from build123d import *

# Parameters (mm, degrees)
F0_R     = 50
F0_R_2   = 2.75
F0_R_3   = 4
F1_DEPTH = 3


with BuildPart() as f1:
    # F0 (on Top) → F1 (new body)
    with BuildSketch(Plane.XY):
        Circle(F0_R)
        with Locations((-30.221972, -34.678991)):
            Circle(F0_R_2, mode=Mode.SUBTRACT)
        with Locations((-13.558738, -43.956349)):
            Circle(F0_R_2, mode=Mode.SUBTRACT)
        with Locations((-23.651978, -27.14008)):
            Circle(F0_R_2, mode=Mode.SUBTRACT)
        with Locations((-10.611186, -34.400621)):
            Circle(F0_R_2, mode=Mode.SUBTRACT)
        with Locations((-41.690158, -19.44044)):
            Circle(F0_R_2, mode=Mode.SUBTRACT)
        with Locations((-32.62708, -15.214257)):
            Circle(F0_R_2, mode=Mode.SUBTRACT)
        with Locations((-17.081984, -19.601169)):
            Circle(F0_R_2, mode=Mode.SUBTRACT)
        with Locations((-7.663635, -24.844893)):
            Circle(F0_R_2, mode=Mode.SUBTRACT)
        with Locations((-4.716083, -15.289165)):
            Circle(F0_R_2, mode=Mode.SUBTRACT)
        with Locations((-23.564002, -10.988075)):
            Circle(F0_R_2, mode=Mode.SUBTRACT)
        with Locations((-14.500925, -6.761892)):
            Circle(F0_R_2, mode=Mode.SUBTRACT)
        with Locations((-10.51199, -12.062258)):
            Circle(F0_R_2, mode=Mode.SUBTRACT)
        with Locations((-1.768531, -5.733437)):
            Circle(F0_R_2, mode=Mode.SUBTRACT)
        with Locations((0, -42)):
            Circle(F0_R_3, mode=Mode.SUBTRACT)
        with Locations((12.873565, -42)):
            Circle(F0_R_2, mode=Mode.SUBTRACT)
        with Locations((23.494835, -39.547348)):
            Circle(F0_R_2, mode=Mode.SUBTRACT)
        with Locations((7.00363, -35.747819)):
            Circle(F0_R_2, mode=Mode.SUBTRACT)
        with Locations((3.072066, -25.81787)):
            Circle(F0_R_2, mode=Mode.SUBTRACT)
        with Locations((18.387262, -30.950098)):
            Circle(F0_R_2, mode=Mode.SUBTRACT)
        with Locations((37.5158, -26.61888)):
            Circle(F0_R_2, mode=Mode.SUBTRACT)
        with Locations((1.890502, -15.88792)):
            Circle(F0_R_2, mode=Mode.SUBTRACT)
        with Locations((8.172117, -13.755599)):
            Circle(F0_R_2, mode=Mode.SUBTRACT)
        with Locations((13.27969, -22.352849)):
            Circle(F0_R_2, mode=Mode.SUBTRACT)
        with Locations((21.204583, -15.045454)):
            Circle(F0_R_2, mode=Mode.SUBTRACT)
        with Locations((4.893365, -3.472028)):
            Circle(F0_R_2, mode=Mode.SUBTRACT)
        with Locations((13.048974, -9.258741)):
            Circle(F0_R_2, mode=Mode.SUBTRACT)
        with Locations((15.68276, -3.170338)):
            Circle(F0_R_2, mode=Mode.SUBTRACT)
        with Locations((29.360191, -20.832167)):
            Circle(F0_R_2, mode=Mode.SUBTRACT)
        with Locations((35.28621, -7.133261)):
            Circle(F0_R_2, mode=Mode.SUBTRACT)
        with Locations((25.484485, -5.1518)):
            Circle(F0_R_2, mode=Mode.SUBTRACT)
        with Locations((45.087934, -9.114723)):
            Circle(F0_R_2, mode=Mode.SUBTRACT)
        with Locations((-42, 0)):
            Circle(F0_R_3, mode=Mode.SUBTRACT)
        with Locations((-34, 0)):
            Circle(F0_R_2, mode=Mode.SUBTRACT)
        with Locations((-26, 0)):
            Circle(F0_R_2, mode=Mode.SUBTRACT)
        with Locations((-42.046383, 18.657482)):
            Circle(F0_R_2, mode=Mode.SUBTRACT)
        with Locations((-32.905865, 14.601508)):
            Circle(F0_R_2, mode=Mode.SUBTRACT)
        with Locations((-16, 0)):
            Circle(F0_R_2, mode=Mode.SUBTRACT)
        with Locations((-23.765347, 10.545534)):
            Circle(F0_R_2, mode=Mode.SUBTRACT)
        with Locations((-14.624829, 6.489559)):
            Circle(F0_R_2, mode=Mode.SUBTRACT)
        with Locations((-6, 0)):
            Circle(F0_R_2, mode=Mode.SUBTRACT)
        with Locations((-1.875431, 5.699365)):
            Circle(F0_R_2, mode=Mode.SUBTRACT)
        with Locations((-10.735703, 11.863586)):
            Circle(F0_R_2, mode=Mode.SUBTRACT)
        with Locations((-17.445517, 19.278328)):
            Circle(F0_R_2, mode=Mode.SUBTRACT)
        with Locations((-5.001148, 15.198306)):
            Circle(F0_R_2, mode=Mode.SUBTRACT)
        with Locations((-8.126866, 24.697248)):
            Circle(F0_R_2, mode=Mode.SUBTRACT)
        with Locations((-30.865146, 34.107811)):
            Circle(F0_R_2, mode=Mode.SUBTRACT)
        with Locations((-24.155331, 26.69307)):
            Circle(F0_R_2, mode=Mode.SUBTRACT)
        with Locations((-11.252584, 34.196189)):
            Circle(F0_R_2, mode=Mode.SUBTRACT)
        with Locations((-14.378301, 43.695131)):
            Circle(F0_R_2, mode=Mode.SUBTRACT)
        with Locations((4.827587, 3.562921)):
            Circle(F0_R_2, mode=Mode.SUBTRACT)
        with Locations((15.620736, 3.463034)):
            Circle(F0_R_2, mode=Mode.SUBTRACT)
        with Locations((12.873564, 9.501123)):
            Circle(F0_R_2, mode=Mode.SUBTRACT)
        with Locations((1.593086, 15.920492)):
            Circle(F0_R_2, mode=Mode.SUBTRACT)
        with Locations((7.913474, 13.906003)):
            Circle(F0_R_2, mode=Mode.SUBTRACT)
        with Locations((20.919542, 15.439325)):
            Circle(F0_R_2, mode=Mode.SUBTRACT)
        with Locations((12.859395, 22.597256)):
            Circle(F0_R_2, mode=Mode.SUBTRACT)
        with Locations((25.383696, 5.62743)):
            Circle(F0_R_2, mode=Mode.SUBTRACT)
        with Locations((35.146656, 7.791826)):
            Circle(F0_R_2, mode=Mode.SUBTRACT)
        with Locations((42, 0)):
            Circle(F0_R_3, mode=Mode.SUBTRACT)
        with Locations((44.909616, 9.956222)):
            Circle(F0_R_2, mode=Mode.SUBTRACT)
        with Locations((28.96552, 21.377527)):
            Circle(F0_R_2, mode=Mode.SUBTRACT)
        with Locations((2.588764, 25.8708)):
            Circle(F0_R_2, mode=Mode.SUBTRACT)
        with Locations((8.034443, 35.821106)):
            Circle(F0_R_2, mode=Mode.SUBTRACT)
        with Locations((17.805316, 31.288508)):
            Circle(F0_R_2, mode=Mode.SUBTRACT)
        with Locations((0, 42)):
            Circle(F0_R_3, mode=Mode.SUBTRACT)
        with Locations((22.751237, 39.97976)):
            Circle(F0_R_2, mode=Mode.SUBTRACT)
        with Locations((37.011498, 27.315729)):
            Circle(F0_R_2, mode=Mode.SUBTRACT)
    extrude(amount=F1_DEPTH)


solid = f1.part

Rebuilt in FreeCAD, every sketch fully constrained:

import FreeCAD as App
import Part
import Sketcher
Q = App.Units.Quantity

doc = App.newDocument("Part")
params = doc.addObject("Spreadsheet::Sheet", "Params")
for row, (alias, value) in enumerate([
    ("sketch1_diameter", "100 mm"),
    ("sketch1_diameter2", "8 mm"),
    ("sketch1_diameter3", "5.5 mm"),
    ("pad1_length", "3 mm"),
], start=1):
    params.set(f"A{row}", alias)
    params.set(f"B{row}", "=" + value)
    params.setAlias(f"B{row}", alias)

body = doc.addObject("PartDesign::Body", "Body")

# Sketch on XY plane
sketch1 = doc.addObject("Sketcher::SketchObject", "Sketch")
body.addObject(sketch1)
sketch1.AttachmentSupport = (doc.XY_Plane, [""])
sketch1.MapMode = "FlatFace"
sketch1.addGeometry([
    Part.Circle(App.Vector(0, 0, 0), App.Vector(0, 0, 1), 50),  # 0
    Part.Circle(App.Vector(-30.2, -34.7, 0), App.Vector(0, 0, 1), 2.8),  # 1
    Part.Circle(App.Vector(-23.7, -27.1, 0), App.Vector(0, 0, 1), 2.8),  # 2
    Part.Circle(App.Vector(-13.6, -44, 0), App.Vector(0, 0, 1), 2.8),  # 3
    Part.Circle(App.Vector(0, -42, 0), App.Vector(0, 0, 1), 4),  # 4
    Part.Circle(App.Vector(-10.6, -34.4, 0), App.Vector(0, 0, 1), 2.8),  # 5
    Part.Circle(App.Vector(-7.7, -24.8, 0), App.Vector(0, 0, 1), 2.8),  # 6
    Part.Circle(App.Vector(-41.7, -19.4, 0), App.Vector(0, 0, 1), 2.8),  # 7
    Part.Circle(App.Vector(-32.6, -15.2, 0), App.Vector(0, 0, 1), 2.8),  # 8
    Part.Circle(App.Vector(-23.6, -11, 0), App.Vector(0, 0, 1), 2.8),  # 9
    Part.Circle(App.Vector(-17.1, -19.6, 0), App.Vector(0, 0, 1), 2.8),  # 10
    Part.Circle(App.Vector(-10.5, -12.1, 0), App.Vector(0, 0, 1), 2.8),  # 11
    Part.Circle(App.Vector(-4.7, -15.3, 0), App.Vector(0, 0, 1), 2.8),  # 12
    Part.Circle(App.Vector(-14.5, -6.8, 0), App.Vector(0, 0, 1), 2.8),  # 13
    Part.Circle(App.Vector(-1.8, -5.7, 0), App.Vector(0, 0, 1), 2.8),  # 14
    Part.Circle(App.Vector(7, -35.7, 0), App.Vector(0, 0, 1), 2.8),  # 15
    Part.Circle(App.Vector(12.9, -42, 0), App.Vector(0, 0, 1), 2.8),  # 16
    Part.Circle(App.Vector(23.5, -39.5, 0), App.Vector(0, 0, 1), 2.8),  # 17
    Part.Circle(App.Vector(3.1, -25.8, 0), App.Vector(0, 0, 1), 2.8),  # 18
    Part.Circle(App.Vector(18.4, -31, 0), App.Vector(0, 0, 1), 2.8),  # 19
    Part.Circle(App.Vector(37.5, -26.6, 0), App.Vector(0, 0, 1), 2.8),  # 20
    Part.Circle(App.Vector(1.9, -15.9, 0), App.Vector(0, 0, 1), 2.8),  # 21
    Part.Circle(App.Vector(8.2, -13.8, 0), App.Vector(0, 0, 1), 2.8),  # 22
    Part.Circle(App.Vector(13.3, -22.4, 0), App.Vector(0, 0, 1), 2.8),  # 23
    Part.Circle(App.Vector(21.2, -15, 0), App.Vector(0, 0, 1), 2.8),  # 24
    Part.Circle(App.Vector(4.9, -3.5, 0), App.Vector(0, 0, 1), 2.8),  # 25
    Part.Circle(App.Vector(13, -9.3, 0), App.Vector(0, 0, 1), 2.8),  # 26
    Part.Circle(App.Vector(15.7, -3.2, 0), App.Vector(0, 0, 1), 2.8),  # 27
    Part.Circle(App.Vector(29.4, -20.8, 0), App.Vector(0, 0, 1), 2.8),  # 28
    Part.Circle(App.Vector(35.3, -7.1, 0), App.Vector(0, 0, 1), 2.8),  # 29
    Part.Circle(App.Vector(25.5, -5.2, 0), App.Vector(0, 0, 1), 2.8),  # 30
    Part.Circle(App.Vector(45.1, -9.1, 0), App.Vector(0, 0, 1), 2.8),  # 31
    Part.Circle(App.Vector(-42, 0, 0), App.Vector(0, 0, 1), 4),  # 32
    Part.Circle(App.Vector(-34, 0, 0), App.Vector(0, 0, 1), 2.8),  # 33
    Part.Circle(App.Vector(-26, 0, 0), App.Vector(0, 0, 1), 2.8),  # 34
    Part.Circle(App.Vector(-23.8, 10.5, 0), App.Vector(0, 0, 1), 2.8),  # 35
    Part.Circle(App.Vector(-42, 18.7, 0), App.Vector(0, 0, 1), 2.8),  # 36
    Part.Circle(App.Vector(-32.9, 14.6, 0), App.Vector(0, 0, 1), 2.8),  # 37
    Part.Circle(App.Vector(-16, 0, 0), App.Vector(0, 0, 1), 2.8),  # 38
    Part.Circle(App.Vector(-14.6, 6.5, 0), App.Vector(0, 0, 1), 2.8),  # 39
    Part.Circle(App.Vector(-6, 0, 0), App.Vector(0, 0, 1), 2.8),  # 40
    Part.Circle(App.Vector(-1.9, 5.7, 0), App.Vector(0, 0, 1), 2.8),  # 41
    Part.Circle(App.Vector(-17.4, 19.3, 0), App.Vector(0, 0, 1), 2.8),  # 42
    Part.Circle(App.Vector(-10.7, 11.9, 0), App.Vector(0, 0, 1), 2.8),  # 43
    Part.Circle(App.Vector(-5, 15.2, 0), App.Vector(0, 0, 1), 2.8),  # 44
    Part.Circle(App.Vector(-24.2, 26.7, 0), App.Vector(0, 0, 1), 2.8),  # 45
    Part.Circle(App.Vector(-30.9, 34.1, 0), App.Vector(0, 0, 1), 2.8),  # 46
    Part.Circle(App.Vector(-11.3, 34.2, 0), App.Vector(0, 0, 1), 2.8),  # 47
    Part.Circle(App.Vector(-8.1, 24.7, 0), App.Vector(0, 0, 1), 2.8),  # 48
    Part.Circle(App.Vector(-14.4, 43.7, 0), App.Vector(0, 0, 1), 2.8),  # 49
    Part.Circle(App.Vector(0, 42, 0), App.Vector(0, 0, 1), 4),  # 50
    Part.Circle(App.Vector(4.8, 3.6, 0), App.Vector(0, 0, 1), 2.8),  # 51
    Part.Circle(App.Vector(15.6, 3.5, 0), App.Vector(0, 0, 1), 2.8),  # 52
    Part.Circle(App.Vector(12.9, 9.5, 0), App.Vector(0, 0, 1), 2.8),  # 53
    Part.Circle(App.Vector(1.6, 15.9, 0), App.Vector(0, 0, 1), 2.8),  # 54
    Part.Circle(App.Vector(7.9, 13.9, 0), App.Vector(0, 0, 1), 2.8),  # 55
    Part.Circle(App.Vector(20.9, 15.4, 0), App.Vector(0, 0, 1), 2.8),  # 56
    Part.Circle(App.Vector(12.9, 22.6, 0), App.Vector(0, 0, 1), 2.8),  # 57
    Part.Circle(App.Vector(25.4, 5.6, 0), App.Vector(0, 0, 1), 2.8),  # 58
    Part.Circle(App.Vector(35.1, 7.8, 0), App.Vector(0, 0, 1), 2.8),  # 59
    Part.Circle(App.Vector(42, 0, 0), App.Vector(0, 0, 1), 4),  # 60
    Part.Circle(App.Vector(44.9, 10, 0), App.Vector(0, 0, 1), 2.8),  # 61
    Part.Circle(App.Vector(29, 21.4, 0), App.Vector(0, 0, 1), 2.8),  # 62
    Part.Circle(App.Vector(2.6, 25.9, 0), App.Vector(0, 0, 1), 2.8),  # 63
    Part.Circle(App.Vector(17.8, 31.3, 0), App.Vector(0, 0, 1), 2.8),  # 64
    Part.Circle(App.Vector(8, 35.8, 0), App.Vector(0, 0, 1), 2.8),  # 65
    Part.Circle(App.Vector(22.8, 40, 0), App.Vector(0, 0, 1), 2.8),  # 66
    Part.Circle(App.Vector(37, 27.3, 0), App.Vector(0, 0, 1), 2.8),  # 67
], False)
sketch1.addConstraint([
    Sketcher.Constraint("Coincident", 0, 3, -1, 1),
    Sketcher.Constraint("Equal", 1, 2),
    Sketcher.Constraint("Equal", 2, 3),
    Sketcher.Constraint("Equal", 3, 5),
    Sketcher.Constraint("Equal", 5, 6),
    Sketcher.Constraint("Equal", 6, 7),
    Sketcher.Constraint("Equal", 7, 8),
    Sketcher.Constraint("Equal", 8, 9),
    Sketcher.Constraint("Equal", 9, 10),
    Sketcher.Constraint("Equal", 10, 11),
    Sketcher.Constraint("Equal", 11, 12),
    Sketcher.Constraint("Equal", 12, 13),
    Sketcher.Constraint("Equal", 13, 14),
    Sketcher.Constraint("Equal", 14, 15),
    Sketcher.Constraint("Equal", 15, 16),
    Sketcher.Constraint("Equal", 16, 17),
    Sketcher.Constraint("Equal", 17, 18),
    Sketcher.Constraint("Equal", 18, 19),
    Sketcher.Constraint("Equal", 19, 20),
    Sketcher.Constraint("Equal", 20, 21),
    Sketcher.Constraint("Equal", 21, 22),
    Sketcher.Constraint("Equal", 22, 23),
    Sketcher.Constraint("Equal", 23, 24),
    Sketcher.Constraint("Equal", 24, 25),
    Sketcher.Constraint("Equal", 25, 26),
    Sketcher.Constraint("Equal", 26, 27),
    Sketcher.Constraint("Equal", 27, 28),
    Sketcher.Constraint("Equal", 28, 29),
    Sketcher.Constraint("Equal", 29, 30),
    Sketcher.Constraint("Equal", 30, 31),
    Sketcher.Constraint("Equal", 4, 32),
    Sketcher.Constraint("Equal", 31, 33),
    Sketcher.Constraint("Equal", 33, 34),
    Sketcher.Constraint("Equal", 34, 35),
    Sketcher.Constraint("Equal", 35, 36),
    Sketcher.Constraint("Equal", 36, 37),
    Sketcher.Constraint("Equal", 37, 38),
    Sketcher.Constraint("Equal", 38, 39),
    Sketcher.Constraint("Equal", 39, 40),
    Sketcher.Constraint("Equal", 40, 41),
    Sketcher.Constraint("Equal", 41, 42),
    Sketcher.Constraint("Equal", 42, 43),
    Sketcher.Constraint("Equal", 43, 44),
    Sketcher.Constraint("Equal", 44, 45),
    Sketcher.Constraint("Equal", 45, 46),
    Sketcher.Constraint("Equal", 46, 47),
    Sketcher.Constraint("Equal", 47, 48),
    Sketcher.Constraint("Equal", 48, 49),
    Sketcher.Constraint("Equal", 32, 50),
    Sketcher.Constraint("Equal", 49, 51),
    Sketcher.Constraint("Equal", 51, 52),
    Sketcher.Constraint("Equal", 52, 53),
    Sketcher.Constraint("Equal", 53, 54),
    Sketcher.Constraint("Equal", 54, 55),
    Sketcher.Constraint("Equal", 55, 56),
    Sketcher.Constraint("Equal", 56, 57),
    Sketcher.Constraint("Equal", 57, 58),
    Sketcher.Constraint("Equal", 58, 59),
    Sketcher.Constraint("Equal", 50, 60),
    Sketcher.Constraint("Equal", 59, 61),
    Sketcher.Constraint("Equal", 61, 62),
    Sketcher.Constraint("Equal", 62, 63),
    Sketcher.Constraint("Equal", 63, 64),
    Sketcher.Constraint("Equal", 64, 65),
    Sketcher.Constraint("Equal", 65, 66),
    Sketcher.Constraint("Equal", 66, 67),
    Sketcher.Constraint("Symmetric", 4, 3, 50, 3, -1, 1),
    Sketcher.Constraint("Symmetric", 32, 3, 60, 3, -1, 1),
    Sketcher.Constraint("PointOnObject", 4, 3, -2),
    Sketcher.Constraint("PointOnObject", 32, 3, -1),
    Sketcher.Constraint("PointOnObject", 33, 3, -1),
    Sketcher.Constraint("PointOnObject", 34, 3, -1),
    Sketcher.Constraint("PointOnObject", 38, 3, -1),
    Sketcher.Constraint("PointOnObject", 40, 3, -1),
    Sketcher.Constraint("Horizontal", 4, 3, 16, 3),
    Sketcher.Constraint("Vertical", 16, 3, 53, 3),
    Sketcher.Constraint("Diameter", 0, Q("100 mm")),
    Sketcher.Constraint("Diameter", 4, Q("8 mm")),
    Sketcher.Constraint("Diameter", 1, Q("5.5 mm")),
    Sketcher.Constraint("DistanceY", 4, 3, -1, 1, Q("42 mm")),
    Sketcher.Constraint("DistanceX", 32, 3, -1, 1, Q("42 mm")),
    Sketcher.Constraint("DistanceX", 33, 3, -1, 1, Q("34 mm")),
    Sketcher.Constraint("DistanceX", 34, 3, -1, 1, Q("26 mm")),
    Sketcher.Constraint("DistanceX", 38, 3, -1, 1, Q("16 mm")),
    Sketcher.Constraint("DistanceX", 40, 3, -1, 1, Q("6 mm")),
    Sketcher.Constraint("DistanceX", 9, 3, -1, 1, Q("23.564002 mm")),
    Sketcher.Constraint("DistanceY", 19, 3, -1, 1, Q("30.950098 mm")),
    Sketcher.Constraint("DistanceX", -1, 1, 20, 3, Q("37.5158 mm")),
    Sketcher.Constraint("DistanceX", -1, 1, 21, 3, Q("1.890502 mm")),
    Sketcher.Constraint("DistanceY", 22, 3, -1, 1, Q("13.755599 mm")),
    Sketcher.Constraint("DistanceY", 30, 3, -1, 1, Q("5.1518 mm")),
    Sketcher.Constraint("DistanceX", 49, 3, -1, 1, Q("14.378301 mm")),
    Sketcher.Constraint("DistanceY", -1, 1, 63, 3, Q("25.8708 mm")),
    Sketcher.Constraint("DistanceX", -1, 1, 67, 3, Q("37.011498 mm")),
    Sketcher.Constraint("DistanceY", 1, 3, -1, 1, Q("34.678991 mm")),
    Sketcher.Constraint("DistanceX", 2, 3, -1, 1, Q("23.651978 mm")),
    Sketcher.Constraint("DistanceY", 2, 3, -1, 1, Q("27.14008 mm")),
    Sketcher.Constraint("DistanceY", 3, 3, -1, 1, Q("43.956349 mm")),
    Sketcher.Constraint("DistanceY", 5, 3, -1, 1, Q("34.400621 mm")),
    Sketcher.Constraint("DistanceY", 7, 3, -1, 1, Q("19.44044 mm")),
    Sketcher.Constraint("DistanceX", 8, 3, -1, 1, Q("32.62708 mm")),
    Sketcher.Constraint("DistanceY", 10, 3, -1, 1, Q("19.601169 mm")),
    Sketcher.Constraint("DistanceX", 11, 3, -1, 1, Q("10.51199 mm")),
    Sketcher.Constraint("DistanceY", 13, 3, -1, 1, Q("6.761892 mm")),
    Sketcher.Constraint("DistanceX", 14, 3, -1, 1, Q("1.768531 mm")),
    Sketcher.Constraint("DistanceX", -1, 1, 15, 3, Q("7.00363 mm")),
    Sketcher.Constraint("DistanceY", 15, 3, -1, 1, Q("35.747819 mm")),
    Sketcher.Constraint("DistanceY", 18, 3, -1, 1, Q("25.81787 mm")),
    Sketcher.Constraint("DistanceX", -1, 1, 19, 3, Q("18.387262 mm")),
    Sketcher.Constraint("DistanceY", 20, 3, -1, 1, Q("26.61888 mm")),
    Sketcher.Constraint("DistanceY", 21, 3, -1, 1, Q("15.88792 mm")),
    Sketcher.Constraint("DistanceX", -1, 1, 23, 3, Q("13.27969 mm")),
    Sketcher.Constraint("DistanceY", 23, 3, -1, 1, Q("22.352849 mm")),
    Sketcher.Constraint("DistanceY", 26, 3, -1, 1, Q("9.258741 mm")),
    Sketcher.Constraint("DistanceX", -1, 1, 27, 3, Q("15.68276 mm")),
    Sketcher.Constraint("DistanceY", 27, 3, -1, 1, Q("3.170338 mm")),
    Sketcher.Constraint("DistanceX", -1, 1, 28, 3, Q("29.360191 mm")),
    Sketcher.Constraint("DistanceX", -1, 1, 29, 3, Q("35.28621 mm")),
    Sketcher.Constraint("DistanceY", 29, 3, -1, 1, Q("7.133261 mm")),
    Sketcher.Constraint("DistanceY", -1, 1, 37, 3, Q("14.601508 mm")),
    Sketcher.Constraint("DistanceX", 39, 3, -1, 1, Q("14.624829 mm")),
    Sketcher.Constraint("DistanceY", -1, 1, 39, 3, Q("6.489559 mm")),
    Sketcher.Constraint("DistanceX", 41, 3, -1, 1, Q("1.875431 mm")),
    Sketcher.Constraint("DistanceX", 45, 3, -1, 1, Q("24.155331 mm")),
    Sketcher.Constraint("DistanceY", -1, 1, 45, 3, Q("26.69307 mm")),
    Sketcher.Constraint("DistanceY", -1, 1, 46, 3, Q("34.107811 mm")),
    Sketcher.Constraint("DistanceY", -1, 1, 47, 3, Q("34.196189 mm")),
    Sketcher.Constraint("DistanceY", -1, 1, 49, 3, Q("43.695131 mm")),
    Sketcher.Constraint("DistanceY", -1, 1, 51, 3, Q("3.562921 mm")),
    Sketcher.Constraint("DistanceX", -1, 1, 56, 3, Q("20.919542 mm")),
    Sketcher.Constraint("DistanceY", -1, 1, 58, 3, Q("5.62743 mm")),
    Sketcher.Constraint("DistanceX", -1, 1, 62, 3, Q("28.96552 mm")),
    Sketcher.Constraint("DistanceY", -1, 1, 64, 3, Q("31.288508 mm")),
    Sketcher.Constraint("DistanceY", -1, 1, 66, 3, Q("39.97976 mm")),
    Sketcher.Constraint("DistanceY", -1, 1, 67, 3, Q("27.315729 mm")),
    Sketcher.Constraint("DistanceX", 1, 3, -1, 1, Q("30.221972 mm")),
    Sketcher.Constraint("DistanceX", 3, 3, -1, 1, Q("13.558738 mm")),
    Sketcher.Constraint("DistanceX", 5, 3, -1, 1, Q("10.611186 mm")),
    Sketcher.Constraint("DistanceX", 6, 3, -1, 1, Q("7.663635 mm")),
    Sketcher.Constraint("DistanceY", 6, 3, -1, 1, Q("24.844893 mm")),
    Sketcher.Constraint("DistanceX", 7, 3, -1, 1, Q("41.690158 mm")),
    Sketcher.Constraint("DistanceY", 8, 3, -1, 1, Q("15.214257 mm")),
    Sketcher.Constraint("DistanceY", 9, 3, -1, 1, Q("10.988075 mm")),
    Sketcher.Constraint("DistanceX", 10, 3, -1, 1, Q("17.081984 mm")),
    Sketcher.Constraint("DistanceY", 11, 3, -1, 1, Q("12.062258 mm")),
    Sketcher.Constraint("DistanceX", 12, 3, -1, 1, Q("4.716083 mm")),
    Sketcher.Constraint("DistanceY", 12, 3, -1, 1, Q("15.289165 mm")),
    Sketcher.Constraint("DistanceX", 13, 3, -1, 1, Q("14.500925 mm")),
    Sketcher.Constraint("DistanceY", 14, 3, -1, 1, Q("5.733437 mm")),
    Sketcher.Constraint("DistanceX", -1, 1, 16, 3, Q("12.873565 mm")),
    Sketcher.Constraint("DistanceX", -1, 1, 17, 3, Q("23.494835 mm")),
    Sketcher.Constraint("DistanceY", 17, 3, -1, 1, Q("39.547348 mm")),
    Sketcher.Constraint("DistanceX", -1, 1, 18, 3, Q("3.072066 mm")),
    Sketcher.Constraint("DistanceX", -1, 1, 22, 3, Q("8.172117 mm")),
    Sketcher.Constraint("DistanceX", -1, 1, 24, 3, Q("21.204583 mm")),
    Sketcher.Constraint("DistanceY", 24, 3, -1, 1, Q("15.045454 mm")),
    Sketcher.Constraint("DistanceX", -1, 1, 25, 3, Q("4.893365 mm")),
    Sketcher.Constraint("DistanceY", 25, 3, -1, 1, Q("3.472028 mm")),
    Sketcher.Constraint("DistanceX", -1, 1, 26, 3, Q("13.048974 mm")),
    Sketcher.Constraint("DistanceY", 28, 3, -1, 1, Q("20.832167 mm")),
    Sketcher.Constraint("DistanceX", -1, 1, 30, 3, Q("25.484485 mm")),
    Sketcher.Constraint("DistanceX", -1, 1, 31, 3, Q("45.087934 mm")),
    Sketcher.Constraint("DistanceY", 31, 3, -1, 1, Q("9.114723 mm")),
    Sketcher.Constraint("DistanceX", 35, 3, -1, 1, Q("23.765347 mm")),
    Sketcher.Constraint("DistanceY", -1, 1, 35, 3, Q("10.545534 mm")),
    Sketcher.Constraint("DistanceX", 36, 3, -1, 1, Q("42.046383 mm")),
    Sketcher.Constraint("DistanceY", -1, 1, 36, 3, Q("18.657482 mm")),
    Sketcher.Constraint("DistanceX", 37, 3, -1, 1, Q("32.905865 mm")),
    Sketcher.Constraint("DistanceY", -1, 1, 41, 3, Q("5.699365 mm")),
    Sketcher.Constraint("DistanceX", 42, 3, -1, 1, Q("17.445517 mm")),
    Sketcher.Constraint("DistanceY", -1, 1, 42, 3, Q("19.278328 mm")),
    Sketcher.Constraint("DistanceX", 43, 3, -1, 1, Q("10.735703 mm")),
    Sketcher.Constraint("DistanceY", -1, 1, 43, 3, Q("11.863586 mm")),
    Sketcher.Constraint("DistanceX", 44, 3, -1, 1, Q("5.001148 mm")),
    Sketcher.Constraint("DistanceY", -1, 1, 44, 3, Q("15.198306 mm")),
    Sketcher.Constraint("DistanceX", 46, 3, -1, 1, Q("30.865146 mm")),
    Sketcher.Constraint("DistanceX", 47, 3, -1, 1, Q("11.252584 mm")),
    Sketcher.Constraint("DistanceX", 48, 3, -1, 1, Q("8.126866 mm")),
    Sketcher.Constraint("DistanceY", -1, 1, 48, 3, Q("24.697248 mm")),
    Sketcher.Constraint("DistanceX", -1, 1, 51, 3, Q("4.827587 mm")),
    Sketcher.Constraint("DistanceX", -1, 1, 52, 3, Q("15.620736 mm")),
    Sketcher.Constraint("DistanceY", -1, 1, 52, 3, Q("3.463034 mm")),
    Sketcher.Constraint("DistanceY", -1, 1, 53, 3, Q("9.501123 mm")),
    Sketcher.Constraint("DistanceX", -1, 1, 54, 3, Q("1.593086 mm")),
    Sketcher.Constraint("DistanceY", -1, 1, 54, 3, Q("15.920492 mm")),
    Sketcher.Constraint("DistanceX", -1, 1, 55, 3, Q("7.913474 mm")),
    Sketcher.Constraint("DistanceY", -1, 1, 55, 3, Q("13.906003 mm")),
    Sketcher.Constraint("DistanceY", -1, 1, 56, 3, Q("15.439325 mm")),
    Sketcher.Constraint("DistanceX", -1, 1, 57, 3, Q("12.859395 mm")),
    Sketcher.Constraint("DistanceY", -1, 1, 57, 3, Q("22.597256 mm")),
    Sketcher.Constraint("DistanceX", -1, 1, 58, 3, Q("25.383696 mm")),
    Sketcher.Constraint("DistanceX", -1, 1, 59, 3, Q("35.146656 mm")),
    Sketcher.Constraint("DistanceY", -1, 1, 59, 3, Q("7.791826 mm")),
    Sketcher.Constraint("DistanceX", -1, 1, 61, 3, Q("44.909616 mm")),
    Sketcher.Constraint("DistanceY", -1, 1, 61, 3, Q("9.956222 mm")),
    Sketcher.Constraint("DistanceY", -1, 1, 62, 3, Q("21.377527 mm")),
    Sketcher.Constraint("DistanceX", -1, 1, 63, 3, Q("2.588764 mm")),
    Sketcher.Constraint("DistanceX", -1, 1, 64, 3, Q("17.805316 mm")),
    Sketcher.Constraint("DistanceX", -1, 1, 65, 3, Q("8.034443 mm")),
    Sketcher.Constraint("DistanceY", -1, 1, 65, 3, Q("35.821106 mm")),
    Sketcher.Constraint("DistanceX", -1, 1, 66, 3, Q("22.751237 mm")),
])
sketch1.setExpression("Constraints[76]", "Params.sketch1_diameter")
sketch1.setExpression("Constraints[77]", "Params.sketch1_diameter2")
sketch1.setExpression("Constraints[78]", "Params.sketch1_diameter3")
pad1 = doc.addObject("PartDesign::Pad", "Pad")
body.addObject(pad1)
pad1.Profile = sketch1
pad1.setExpression("Length", "Params.pad1_length")

doc.recompute()
